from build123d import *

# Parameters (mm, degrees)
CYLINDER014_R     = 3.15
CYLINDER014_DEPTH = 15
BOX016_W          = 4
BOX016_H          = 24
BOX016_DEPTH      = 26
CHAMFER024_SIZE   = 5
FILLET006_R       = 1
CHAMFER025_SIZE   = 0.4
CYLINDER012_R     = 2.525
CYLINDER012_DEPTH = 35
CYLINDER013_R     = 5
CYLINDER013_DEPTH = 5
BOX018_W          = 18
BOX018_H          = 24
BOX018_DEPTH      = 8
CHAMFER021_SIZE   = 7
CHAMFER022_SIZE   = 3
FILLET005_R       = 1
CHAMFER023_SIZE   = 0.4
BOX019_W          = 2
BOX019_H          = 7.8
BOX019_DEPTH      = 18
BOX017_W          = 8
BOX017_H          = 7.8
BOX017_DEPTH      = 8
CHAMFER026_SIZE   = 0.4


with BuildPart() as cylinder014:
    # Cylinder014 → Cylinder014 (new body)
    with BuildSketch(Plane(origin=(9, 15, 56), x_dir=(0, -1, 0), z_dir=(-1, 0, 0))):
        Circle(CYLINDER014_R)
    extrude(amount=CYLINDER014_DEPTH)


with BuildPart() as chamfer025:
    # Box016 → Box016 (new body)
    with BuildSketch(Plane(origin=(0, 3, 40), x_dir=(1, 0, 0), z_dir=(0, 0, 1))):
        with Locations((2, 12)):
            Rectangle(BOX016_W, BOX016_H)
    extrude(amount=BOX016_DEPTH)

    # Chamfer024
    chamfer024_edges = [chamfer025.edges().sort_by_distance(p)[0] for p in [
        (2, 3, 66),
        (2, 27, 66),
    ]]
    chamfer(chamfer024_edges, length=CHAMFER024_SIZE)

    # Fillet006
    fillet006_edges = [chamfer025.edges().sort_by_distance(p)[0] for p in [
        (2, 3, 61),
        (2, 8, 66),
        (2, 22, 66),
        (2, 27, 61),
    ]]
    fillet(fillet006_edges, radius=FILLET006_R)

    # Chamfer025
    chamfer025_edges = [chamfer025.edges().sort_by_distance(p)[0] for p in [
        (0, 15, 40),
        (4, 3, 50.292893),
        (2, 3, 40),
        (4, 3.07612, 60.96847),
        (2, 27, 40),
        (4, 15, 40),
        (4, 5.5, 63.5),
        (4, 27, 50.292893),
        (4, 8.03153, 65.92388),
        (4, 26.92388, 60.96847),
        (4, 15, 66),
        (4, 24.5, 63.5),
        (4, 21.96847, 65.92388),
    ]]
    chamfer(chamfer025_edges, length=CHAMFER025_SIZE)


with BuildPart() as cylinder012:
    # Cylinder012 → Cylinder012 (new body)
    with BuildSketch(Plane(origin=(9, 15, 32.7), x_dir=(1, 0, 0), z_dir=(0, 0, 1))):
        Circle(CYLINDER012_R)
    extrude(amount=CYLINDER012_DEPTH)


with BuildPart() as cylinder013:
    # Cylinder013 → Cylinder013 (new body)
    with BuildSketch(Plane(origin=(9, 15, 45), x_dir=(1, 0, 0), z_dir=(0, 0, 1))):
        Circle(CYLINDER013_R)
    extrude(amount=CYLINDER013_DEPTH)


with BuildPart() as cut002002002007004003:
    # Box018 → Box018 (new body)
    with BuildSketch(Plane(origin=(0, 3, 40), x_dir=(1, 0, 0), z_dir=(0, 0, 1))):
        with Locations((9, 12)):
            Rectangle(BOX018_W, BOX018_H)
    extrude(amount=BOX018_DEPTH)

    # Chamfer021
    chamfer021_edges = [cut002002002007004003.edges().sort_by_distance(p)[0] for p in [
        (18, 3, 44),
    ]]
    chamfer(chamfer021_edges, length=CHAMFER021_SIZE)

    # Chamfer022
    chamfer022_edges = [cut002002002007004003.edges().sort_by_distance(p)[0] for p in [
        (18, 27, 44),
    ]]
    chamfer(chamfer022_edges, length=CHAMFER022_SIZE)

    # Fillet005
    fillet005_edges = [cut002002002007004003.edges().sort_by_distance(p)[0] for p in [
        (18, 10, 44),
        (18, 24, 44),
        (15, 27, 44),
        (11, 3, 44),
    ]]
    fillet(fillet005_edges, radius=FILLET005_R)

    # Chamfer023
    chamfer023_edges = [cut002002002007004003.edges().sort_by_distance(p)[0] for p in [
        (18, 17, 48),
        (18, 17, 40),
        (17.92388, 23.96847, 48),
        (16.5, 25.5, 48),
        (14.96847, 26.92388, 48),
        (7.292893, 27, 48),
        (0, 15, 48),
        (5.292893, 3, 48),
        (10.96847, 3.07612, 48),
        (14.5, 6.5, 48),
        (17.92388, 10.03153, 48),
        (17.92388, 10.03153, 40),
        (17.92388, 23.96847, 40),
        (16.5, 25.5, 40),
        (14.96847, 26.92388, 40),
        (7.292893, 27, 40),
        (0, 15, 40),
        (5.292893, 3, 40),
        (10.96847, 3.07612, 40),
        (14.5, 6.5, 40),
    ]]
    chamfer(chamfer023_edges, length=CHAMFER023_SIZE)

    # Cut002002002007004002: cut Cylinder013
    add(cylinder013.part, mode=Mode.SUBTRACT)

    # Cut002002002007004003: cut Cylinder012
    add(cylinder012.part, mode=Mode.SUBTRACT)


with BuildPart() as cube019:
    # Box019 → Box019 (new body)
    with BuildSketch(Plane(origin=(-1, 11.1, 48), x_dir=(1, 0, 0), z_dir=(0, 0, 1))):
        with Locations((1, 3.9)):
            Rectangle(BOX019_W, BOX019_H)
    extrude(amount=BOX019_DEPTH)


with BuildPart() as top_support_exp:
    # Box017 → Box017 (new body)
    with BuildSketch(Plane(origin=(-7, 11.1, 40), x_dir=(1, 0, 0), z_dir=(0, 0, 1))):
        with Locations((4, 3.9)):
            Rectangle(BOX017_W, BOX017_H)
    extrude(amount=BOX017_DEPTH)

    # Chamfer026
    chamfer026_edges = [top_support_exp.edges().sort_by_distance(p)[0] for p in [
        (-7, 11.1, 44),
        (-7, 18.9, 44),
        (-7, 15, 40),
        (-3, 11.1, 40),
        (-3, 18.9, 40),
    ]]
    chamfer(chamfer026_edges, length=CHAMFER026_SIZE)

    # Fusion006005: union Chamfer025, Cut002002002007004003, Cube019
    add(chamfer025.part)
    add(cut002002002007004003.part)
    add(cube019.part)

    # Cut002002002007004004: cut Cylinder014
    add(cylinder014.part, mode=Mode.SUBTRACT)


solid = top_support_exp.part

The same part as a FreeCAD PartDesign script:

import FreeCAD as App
import Part
import Sketcher
from FreeCAD import Vector
Q = App.Units.Quantity


def edges_at(feature, points):
    """Names of the edges that pass closest to the given points."""
    edges = feature.Shape.Edges
    near = lambda p: min(range(len(edges)), key=lambda i: edges[i].distToShape(Part.Vertex(*p))[0])
    return sorted({f"Edge{near(p) + 1}" for p in points})

doc = App.newDocument("Part")
params = doc.addObject("Spreadsheet::Sheet", "Params")
for row, (alias, value) in enumerate([
    ("sketch1_diameter", "6.3 mm"),
    ("pad1_length", "15 mm"),
    ("sketch2_width", "4 mm"),
    ("sketch2_height", "24 mm"),
    ("pad2_length", "26 mm"),
    ("chamfer_size", "5 mm"),
    ("fillet_radius", "1 mm"),
    ("chamfer2_size", "0.4 mm"),
    ("sketch3_diameter", "5.05 mm"),
    ("pad3_length", "35 mm"),
    ("sketch4_diameter", "10 mm"),
    ("pad4_length", "5 mm"),
    ("sketch5_width", "18 mm"),
    ("sketch5_height", "24 mm"),
    ("pad5_length", "8 mm"),
    ("chamfer3_size", "7 mm"),
    ("chamfer4_size", "3 mm"),
    ("fillet2_radius", "1 mm"),
    ("chamfer5_size", "0.4 mm"),
    ("sketch6_width", "2 mm"),
    ("sketch6_height", "7.8 mm"),
    ("pad6_length", "18 mm"),
    ("sketch7_width", "8 mm"),
    ("sketch7_height", "7.8 mm"),
    ("pad7_length", "8 mm"),
    ("chamfer6_size", "0.4 mm"),
], start=1):
    params.set(f"A{row}", alias)
    params.set(f"B{row}", "=" + value)
    params.setAlias(f"B{row}", alias)

body = doc.addObject("PartDesign::Body", "Body")

# Sketch on YZ plane
sketch1 = doc.addObject("Sketcher::SketchObject", "Sketch")
body.addObject(sketch1)
sketch1.AttachmentSupport = (doc.YZ_Plane, [""])
sketch1.MapMode = "FlatFace"
sketch1.AttachmentOffset = App.Placement(Vector(0, 0, 9), App.Rotation())
sketch1.addGeometry(Part.Circle(Vector(15, 56, 0), Vector(0, 0, 1), 3.1), False)
sketch1.addConstraint([
    Sketcher.Constraint("Diameter", 0, Q("6.3 mm")),
    Sketcher.Constraint("DistanceX", -1, 1, 0, 3, Q("15 mm")),
    Sketcher.Constraint("DistanceY", -1, 1, 0, 3, Q("56 mm")),
])
sketch1.setExpression("Constraints[0]", "Params.sketch1_diameter")
pad1 = doc.addObject("PartDesign::Pad", "Pad")
body.addObject(pad1)
pad1.Profile = sketch1
pad1.setExpression("Length", "Params.pad1_length")
pad1.Reversed = True
body2 = doc.addObject("PartDesign::Body", "Body001")

# Sketch on XY plane
sketch2 = doc.addObject("Sketcher::SketchObject", "Sketch001")
body2.addObject(sketch2)
sketch2.AttachmentSupport = (doc.getObject("XY_Plane001"), [""])
sketch2.MapMode = "FlatFace"
sketch2.AttachmentOffset = App.Placement(Vector(0, 0, 40), App.Rotation())
sketch2.addGeometry([
    Part.LineSegment(Vector(0, 27, 0), Vector(0, 3, 0)),
    Part.LineSegment(Vector(0, 3, 0), Vector(4, 3, 0)),
    Part.LineSegment(Vector(4, 3, 0), Vector(4, 27, 0)),
    Part.LineSegment(Vector(4, 27, 0), Vector(0, 27, 0)),
], False)
sketch2.addConstraint([
    Sketcher.Constraint("Coincident", 0, 2, 1, 1),
    Sketcher.Constraint("Coincident", 1, 2, 2, 1),
    Sketcher.Constraint("Coincident", 2, 2, 3, 1),
    Sketcher.Constraint("Coincident", 3, 2, 0, 1),
    Sketcher.Constraint("Vertical", 0),
    Sketcher.Constraint("Horizontal", 1),
    Sketcher.Constraint("Vertical", 2),
    Sketcher.Constraint("Horizontal", 3),
    Sketcher.Constraint("PointOnObject", 0, 2, -2),
    Sketcher.Constraint("DistanceX", 1, 1, 1, 2, Q("4 mm")),
    Sketcher.Constraint("DistanceY", 0, 2, 0, 1, Q("24 mm")),
    Sketcher.Constraint("DistanceY", -1, 1, 0, 2, Q("3 mm")),
])
sketch2.setExpression("Constraints[9]", "Params.sketch2_width")
sketch2.setExpression("Constraints[10]", "Params.sketch2_height")
pad2 = doc.addObject("PartDesign::Pad", "Pad001")
body2.addObject(pad2)
pad2.Profile = sketch2
pad2.setExpression("Length", "Params.pad2_length")
doc.recompute()

chamfer = doc.addObject("PartDesign::Chamfer", "Chamfer")
body2.addObject(chamfer)
chamfer.Base = (pad2, edges_at(pad2, [(2, 3, 66), (2, 27, 66)]))
chamfer.setExpression("Size", "Params.chamfer_size")
doc.recompute()

fillet = doc.addObject("PartDesign::Fillet", "Fillet")
body2.addObject(fillet)
fillet.Base = (chamfer, edges_at(chamfer, [
    (2, 3, 61),
    (2, 8, 66),
    (2, 22, 66),
    (2, 27, 61),
]))
fillet.setExpression("Radius", "Params.fillet_radius")
doc.recompute()

chamfer2 = doc.addObject("PartDesign::Chamfer", "Chamfer001")
body2.addObject(chamfer2)
chamfer2.Base = (fillet, edges_at(fillet, [
    (0, 15, 40),
    (4, 3, 50.293),
    (2, 3, 40),
    (4, 3.076, 60.968),
    (2, 27, 40),
    (4, 15, 40),
    (4, 5.5, 63.5),
    (4, 27, 50.293),
    (4, 8.032, 65.924),
    (4, 26.924, 60.968),
    (4, 15, 66),
    (4, 24.5, 63.5),
    (4, 21.968, 65.924),
]))
chamfer2.setExpression("Size", "Params.chamfer2_size")
body3 = doc.addObject("PartDesign::Body", "Body002")

# Sketch on XY plane
sketch3 = doc.addObject("Sketcher::SketchObject", "Sketch002")
body3.addObject(sketch3)
sketch3.AttachmentSupport = (doc.getObject("XY_Plane002"), [""])
sketch3.MapMode = "FlatFace"
sketch3.AttachmentOffset = App.Placement(Vector(0, 0, 32.7), App.Rotation())
sketch3.addGeometry(Part.Circle(Vector(9, 15, 0), Vector(0, 0, 1), 2.5), False)
sketch3.addConstraint([
    Sketcher.Constraint("Diameter", 0, Q("5.05 mm")),
    Sketcher.Constraint("DistanceX", -1, 1, 0, 3, Q("9 mm")),
    Sketcher.Constraint("DistanceY", -1, 1, 0, 3, Q("15 mm")),
])
sketch3.setExpression("Constraints[0]", "Params.sketch3_diameter")
pad3 = doc.addObject("PartDesign::Pad", "Pad002")
body3.addObject(pad3)
pad3.Profile = sketch3
pad3.setExpression("Length", "Params.pad3_length")
body4 = doc.addObject("PartDesign::Body", "Body003")

# Sketch on XY plane
sketch4 = doc.addObject("Sketcher::SketchObject", "Sketch003")
body4.addObject(sketch4)
sketch4.AttachmentSupport = (doc.getObject("XY_Plane003"), [""])
sketch4.MapMode = "FlatFace"
sketch4.AttachmentOffset = App.Placement(Vector(0, 0, 45), App.Rotation())
sketch4.addGeometry(Part.Circle(Vector(9, 15, 0), Vector(0, 0, 1), 5), False)
sketch4.addConstraint([
    Sketcher.Constraint("Diameter", 0, Q("10 mm")),
    Sketcher.Constraint("DistanceX", -1, 1, 0, 3, Q("9 mm")),
    Sketcher.Constraint("DistanceY", -1, 1, 0, 3, Q("15 mm")),
])
sketch4.setExpression("Constraints[0]", "Params.sketch4_diameter")
pad4 = doc.addObject("PartDesign::Pad", "Pad003")
body4.addObject(pad4)
pad4.Profile = sketch4
pad4.setExpression("Length", "Params.pad4_length")
body5 = doc.addObject("PartDesign::Body", "Body004")

# Sketch on XY plane
sketch5 = doc.addObject("Sketcher::SketchObject", "Sketch004")
body5.addObject(sketch5)
sketch5.AttachmentSupport = (doc.getObject("XY_Plane004"), [""])
sketch5.MapMode = "FlatFace"
sketch5.AttachmentOffset = App.Placement(Vector(0, 0, 40), App.Rotation())
sketch5.addGeometry([
    Part.LineSegment(Vector(0, 27, 0), Vector(0, 3, 0)),
    Part.LineSegment(Vector(0, 3, 0), Vector(18, 3, 0)),
    Part.LineSegment(Vector(18, 3, 0), Vector(18, 27, 0)),
    Part.LineSegment(Vector(18, 27, 0), Vector(0, 27, 0)),
], False)
sketch5.addConstraint([
    Sketcher.Constraint("Coincident", 0, 2, 1, 1),
    Sketcher.Constraint("Coincident", 1, 2, 2, 1),
    Sketcher.Constraint("Coincident", 2, 2, 3, 1),
    Sketcher.Constraint("Coincident", 3, 2, 0, 1),
    Sketcher.Constraint("Vertical", 0),
    Sketcher.Constraint("Horizontal", 1),
    Sketcher.Constraint("Vertical", 2),
    Sketcher.Constraint("Horizontal", 3),
    Sketcher.Constraint("PointOnObject", 0, 2, -2),
    Sketcher.Constraint("DistanceX", 1, 1, 1, 2, Q("18 mm")),
    Sketcher.Constraint("DistanceY", 0, 2, 0, 1, Q("24 mm")),
    Sketcher.Constraint("DistanceY", -1, 1, 0, 2, Q("3 mm")),
])
sketch5.setExpression("Constraints[9]", "Params.sketch5_width")
sketch5.setExpression("Constraints[10]", "Params.sketch5_height")
pad5 = doc.addObject("PartDesign::Pad", "Pad004")
body5.addObject(pad5)
pad5.Profile = sketch5
pad5.setExpression("Length", "Params.pad5_length")
doc.recompute()

chamfer3 = doc.addObject("PartDesign::Chamfer", "Chamfer002")
body5.addObject(chamfer3)
chamfer3.Base = (pad5, edges_at(pad5, [(18, 3, 44)]))
chamfer3.setExpression("Size", "Params.chamfer3_size")
doc.recompute()

chamfer4 = doc.addObject("PartDesign::Chamfer", "Chamfer003")
body5.addObject(chamfer4)
chamfer4.Base = (chamfer3, edges_at(chamfer3, [(18, 27, 44)]))
chamfer4.setExpression("Size", "Params.chamfer4_size")
doc.recompute()

fillet2 = doc.addObject("PartDesign::Fillet", "Fillet001")
body5.addObject(fillet2)
fillet2.Base = (chamfer4, edges_at(chamfer4, [
    (18, 10, 44),
    (18, 24, 44),
    (15, 27, 44),
    (11, 3, 44),
]))
fillet2.setExpression("Radius", "Params.fillet2_radius")
doc.recompute()

chamfer5 = doc.addObject("PartDesign::Chamfer", "Chamfer004")
body5.addObject(chamfer5)
chamfer5.Base = (fillet2, edges_at(fillet2, [
    (18, 17, 48),
    (18, 17, 40),
    (17.924, 23.968, 48),
    (16.5, 25.5, 48),
    (14.968, 26.924, 48),
    (7.293, 27, 48),
    (0, 15, 48),
    (5.293, 3, 48),
    (10.968, 3.076, 48),
    (14.5, 6.5, 48),
    (17.924, 10.032, 48),
    (17.924, 10.032, 40),
    (17.924, 23.968, 40),
    (16.5, 25.5, 40),
    (14.968, 26.924, 40),
    (7.293, 27, 40),
    (0, 15, 40),
    (5.293, 3, 40),
    (10.968, 3.076, 40),
    (14.5, 6.5, 40),
]))
chamfer5.setExpression("Size", "Params.chamfer5_size")
doc.recompute()

boolean = doc.addObject("PartDesign::Boolean", "Boolean")
body5.addObject(boolean)
boolean.Type = "Cut"
boolean.addObjects([body4])
doc.recompute()

boolean2 = doc.addObject("PartDesign::Boolean", "Boolean001")
body5.addObject(boolean2)
boolean2.Type = "Cut"
boolean2.addObjects([body3])
body6 = doc.addObject("PartDesign::Body", "Body005")

# Sketch on XY plane
sketch6 = doc.addObject("Sketcher::SketchObject", "Sketch005")
body6.addObject(sketch6)
sketch6.AttachmentSupport = (doc.getObject("XY_Plane005"), [""])
sketch6.MapMode = "FlatFace"
sketch6.AttachmentOffset = App.Placement(Vector(0, 0, 48), App.Rotation())
sketch6.addGeometry([
    Part.LineSegment(Vector(-1, 18.9, 0), Vector(-1, 11.1, 0)),
    Part.LineSegment(Vector(-1, 11.1, 0), Vector(1, 11.1, 0)),
    Part.LineSegment(Vector(1, 11.1, 0), Vector(1, 18.9, 0)),
    Part.LineSegment(Vector(1, 18.9, 0), Vector(-1, 18.9, 0)),
], False)
sketch6.addConstraint([
    Sketcher.Constraint("Coincident", 0, 2, 1, 1),
    Sketcher.Constraint("Coincident", 1, 2, 2, 1),
    Sketcher.Constraint("Coincident", 2, 2, 3, 1),
    Sketcher.Constraint("Coincident", 3, 2, 0, 1),
    Sketcher.Constraint("Vertical", 0),
    Sketcher.Constraint("Horizontal", 1),
    Sketcher.Constraint("Vertical", 2),
    Sketcher.Constraint("Horizontal", 3),
    Sketcher.Constraint("DistanceX", 1, 1, 1, 2, Q("2 mm")),
    Sketcher.Constraint("DistanceY", 0, 2, 0, 1, Q("7.8 mm")),
    Sketcher.Constraint("DistanceX", 0, 2, -1, 1, Q("1 mm")),
    Sketcher.Constraint("DistanceY", -1, 1, 0, 2, Q("11.1 mm")),
])
sketch6.setExpression("Constraints[8]", "Params.sketch6_width")
sketch6.setExpression("Constraints[9]", "Params.sketch6_height")
pad6 = doc.addObject("PartDesign::Pad", "Pad005")
body6.addObject(pad6)
pad6.Profile = sketch6
pad6.setExpression("Length", "Params.pad6_length")
body7 = doc.addObject("PartDesign::Body", "Body006")

# Sketch on XY plane
sketch7 = doc.addObject("Sketcher::SketchObject", "Sketch006")
body7.addObject(sketch7)
sketch7.AttachmentSupport = (doc.getObject("XY_Plane006"), [""])
sketch7.MapMode = "FlatFace"
sketch7.AttachmentOffset = App.Placement(Vector(0, 0, 40), App.Rotation())
sketch7.addGeometry([
    Part.LineSegment(Vector(-7, 19, 0), Vector(-7, 11, 0)),
    Part.LineSegment(Vector(-7, 11, 0), Vector(1, 11, 0)),
    Part.LineSegment(Vector(1, 11, 0), Vector(1, 19, 0)),
    Part.LineSegment(Vector(1, 19, 0), Vector(-7, 19, 0)),
], False)
sketch7.addConstraint([
    Sketcher.Constraint("Coincident", 0, 2, 1, 1),
    Sketcher.Constraint("Coincident", 1, 2, 2, 1),
    Sketcher.Constraint("Coincident", 2, 2, 3, 1),
    Sketcher.Constraint("Coincident", 3, 2, 0, 1),
    Sketcher.Constraint("Vertical", 0),
    Sketcher.Constraint("Horizontal", 1),
    Sketcher.Constraint("Vertical", 2),
    Sketcher.Constraint("Horizontal", 3),
    Sketcher.Constraint("DistanceX", 1, 1, 1, 2, Q("8 mm")),
    Sketcher.Constraint("DistanceY", 0, 2, 0, 1, Q("7.8 mm")),
    Sketcher.Constraint("DistanceX", 0, 2, -1, 1, Q("7 mm")),
    Sketcher.Constraint("DistanceY", -1, 1, 0, 2, Q("11.1 mm")),
])
sketch7.setExpression("Constraints[8]", "Params.sketch7_width")
sketch7.setExpression("Constraints[9]", "Params.sketch7_height")
pad7 = doc.addObject("PartDesign::Pad", "Pad006")
body7.addObject(pad7)
pad7.Profile = sketch7
pad7.setExpression("Length", "Params.pad7_length")
doc.recompute()

chamfer6 = doc.addObject("PartDesign::Chamfer", "Chamfer005")
body7.addObject(chamfer6)
chamfer6.Base = (pad7, edges_at(pad7, [
    (-7, 11.1, 44),
    (-7, 18.9, 44),
    (-7, 15, 40),
    (-3, 11.1, 40),
    (-3, 18.9, 40),
]))
chamfer6.setExpression("Size", "Params.chamfer6_size")
doc.recompute()

boolean3 = doc.addObject("PartDesign::Boolean", "Boolean002")
body7.addObject(boolean3)
boolean3.Type = "Fuse"
boolean3.addObjects([body2])
doc.recompute()

boolean4 = doc.addObject("PartDesign::Boolean", "Boolean003")
body7.addObject(boolean4)
boolean4.Type = "Fuse"
boolean4.addObjects([body5])
doc.recompute()

boolean5 = doc.addObject("PartDesign::Boolean", "Boolean004")
body7.addObject(boolean5)
boolean5.Type = "Fuse"
boolean5.addObjects([body6])
doc.recompute()

boolean6 = doc.addObject("PartDesign::Boolean", "Boolean005")
body7.addObject(boolean6)
boolean6.Type = "Cut"
boolean6.addObjects([body])

doc.recompute()
